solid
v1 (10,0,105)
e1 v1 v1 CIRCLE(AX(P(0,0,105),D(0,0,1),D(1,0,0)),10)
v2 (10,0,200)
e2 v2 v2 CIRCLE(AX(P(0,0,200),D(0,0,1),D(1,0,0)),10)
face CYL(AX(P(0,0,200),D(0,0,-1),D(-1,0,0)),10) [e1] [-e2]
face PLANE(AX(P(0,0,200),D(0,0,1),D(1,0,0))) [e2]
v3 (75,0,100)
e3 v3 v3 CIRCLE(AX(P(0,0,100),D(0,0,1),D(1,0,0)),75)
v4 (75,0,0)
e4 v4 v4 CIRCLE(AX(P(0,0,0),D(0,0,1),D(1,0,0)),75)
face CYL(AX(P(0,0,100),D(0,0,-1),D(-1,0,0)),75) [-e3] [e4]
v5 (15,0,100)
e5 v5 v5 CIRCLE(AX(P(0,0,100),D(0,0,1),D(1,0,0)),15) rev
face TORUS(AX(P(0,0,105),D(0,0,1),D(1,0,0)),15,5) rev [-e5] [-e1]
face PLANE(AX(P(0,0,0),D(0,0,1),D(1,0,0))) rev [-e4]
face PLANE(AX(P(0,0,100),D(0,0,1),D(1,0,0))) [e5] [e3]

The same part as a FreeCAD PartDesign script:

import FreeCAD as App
import Part
import Sketcher

V = App.Vector


def edges_at(feature, points):
    """Names of the edges that pass closest to the given points."""
    edges = feature.Shape.Edges
    near = lambda p: min(range(len(edges)), key=lambda i: edges[i].distToShape(Part.Vertex(*p))[0])
    return sorted({f"Edge{near(p) + 1}" for p in points})

doc = App.newDocument("Part")
body = doc.addObject("PartDesign::Body", "Body")

# Sketch on XY plane
sketch1 = body.newObject("Sketcher::SketchObject", "Sketch")
sketch1.AttachmentSupport = (doc.getObject("XY_Plane"), [""])
sketch1.MapMode = "FlatFace"
sketch1.addGeometry(Part.Circle(V(0, 0, 0), V(0, 0, 1), 75), False)
sketch1.addConstraint([
    Sketcher.Constraint("Coincident", 0, 3, -1, 1),
    Sketcher.Constraint("Diameter", 0, 150.0),
])
pad1 = body.newObject("PartDesign::Pad", "Pad")
pad1.Profile = sketch1
pad1.Length = 100

# Sketch on XY plane
sketch2 = body.newObject("Sketcher::SketchObject", "Sketch001")
sketch2.AttachmentSupport = (doc.getObject("XY_Plane"), [""])
sketch2.MapMode = "FlatFace"
sketch2.AttachmentOffset = App.Placement(V(0, 0, 100), App.Rotation())
sketch2.addGeometry(Part.Circle(V(0, 0, 0), V(0, 0, 1), 10), False)
sketch2.addConstraint([
    Sketcher.Constraint("Coincident", 0, 3, -1, 1),
    Sketcher.Constraint("Diameter", 0, 20.0),
])
pad2 = body.newObject("PartDesign::Pad", "Pad001")
pad2.Profile = sketch2
pad2.Length = 100
doc.recompute()

fillet = body.newObject("PartDesign::Fillet", "Fillet")
fillet.Base = (pad2, edges_at(pad2, [(-10, 0, 100)]))
fillet.Radius = 5

doc.recompute()
